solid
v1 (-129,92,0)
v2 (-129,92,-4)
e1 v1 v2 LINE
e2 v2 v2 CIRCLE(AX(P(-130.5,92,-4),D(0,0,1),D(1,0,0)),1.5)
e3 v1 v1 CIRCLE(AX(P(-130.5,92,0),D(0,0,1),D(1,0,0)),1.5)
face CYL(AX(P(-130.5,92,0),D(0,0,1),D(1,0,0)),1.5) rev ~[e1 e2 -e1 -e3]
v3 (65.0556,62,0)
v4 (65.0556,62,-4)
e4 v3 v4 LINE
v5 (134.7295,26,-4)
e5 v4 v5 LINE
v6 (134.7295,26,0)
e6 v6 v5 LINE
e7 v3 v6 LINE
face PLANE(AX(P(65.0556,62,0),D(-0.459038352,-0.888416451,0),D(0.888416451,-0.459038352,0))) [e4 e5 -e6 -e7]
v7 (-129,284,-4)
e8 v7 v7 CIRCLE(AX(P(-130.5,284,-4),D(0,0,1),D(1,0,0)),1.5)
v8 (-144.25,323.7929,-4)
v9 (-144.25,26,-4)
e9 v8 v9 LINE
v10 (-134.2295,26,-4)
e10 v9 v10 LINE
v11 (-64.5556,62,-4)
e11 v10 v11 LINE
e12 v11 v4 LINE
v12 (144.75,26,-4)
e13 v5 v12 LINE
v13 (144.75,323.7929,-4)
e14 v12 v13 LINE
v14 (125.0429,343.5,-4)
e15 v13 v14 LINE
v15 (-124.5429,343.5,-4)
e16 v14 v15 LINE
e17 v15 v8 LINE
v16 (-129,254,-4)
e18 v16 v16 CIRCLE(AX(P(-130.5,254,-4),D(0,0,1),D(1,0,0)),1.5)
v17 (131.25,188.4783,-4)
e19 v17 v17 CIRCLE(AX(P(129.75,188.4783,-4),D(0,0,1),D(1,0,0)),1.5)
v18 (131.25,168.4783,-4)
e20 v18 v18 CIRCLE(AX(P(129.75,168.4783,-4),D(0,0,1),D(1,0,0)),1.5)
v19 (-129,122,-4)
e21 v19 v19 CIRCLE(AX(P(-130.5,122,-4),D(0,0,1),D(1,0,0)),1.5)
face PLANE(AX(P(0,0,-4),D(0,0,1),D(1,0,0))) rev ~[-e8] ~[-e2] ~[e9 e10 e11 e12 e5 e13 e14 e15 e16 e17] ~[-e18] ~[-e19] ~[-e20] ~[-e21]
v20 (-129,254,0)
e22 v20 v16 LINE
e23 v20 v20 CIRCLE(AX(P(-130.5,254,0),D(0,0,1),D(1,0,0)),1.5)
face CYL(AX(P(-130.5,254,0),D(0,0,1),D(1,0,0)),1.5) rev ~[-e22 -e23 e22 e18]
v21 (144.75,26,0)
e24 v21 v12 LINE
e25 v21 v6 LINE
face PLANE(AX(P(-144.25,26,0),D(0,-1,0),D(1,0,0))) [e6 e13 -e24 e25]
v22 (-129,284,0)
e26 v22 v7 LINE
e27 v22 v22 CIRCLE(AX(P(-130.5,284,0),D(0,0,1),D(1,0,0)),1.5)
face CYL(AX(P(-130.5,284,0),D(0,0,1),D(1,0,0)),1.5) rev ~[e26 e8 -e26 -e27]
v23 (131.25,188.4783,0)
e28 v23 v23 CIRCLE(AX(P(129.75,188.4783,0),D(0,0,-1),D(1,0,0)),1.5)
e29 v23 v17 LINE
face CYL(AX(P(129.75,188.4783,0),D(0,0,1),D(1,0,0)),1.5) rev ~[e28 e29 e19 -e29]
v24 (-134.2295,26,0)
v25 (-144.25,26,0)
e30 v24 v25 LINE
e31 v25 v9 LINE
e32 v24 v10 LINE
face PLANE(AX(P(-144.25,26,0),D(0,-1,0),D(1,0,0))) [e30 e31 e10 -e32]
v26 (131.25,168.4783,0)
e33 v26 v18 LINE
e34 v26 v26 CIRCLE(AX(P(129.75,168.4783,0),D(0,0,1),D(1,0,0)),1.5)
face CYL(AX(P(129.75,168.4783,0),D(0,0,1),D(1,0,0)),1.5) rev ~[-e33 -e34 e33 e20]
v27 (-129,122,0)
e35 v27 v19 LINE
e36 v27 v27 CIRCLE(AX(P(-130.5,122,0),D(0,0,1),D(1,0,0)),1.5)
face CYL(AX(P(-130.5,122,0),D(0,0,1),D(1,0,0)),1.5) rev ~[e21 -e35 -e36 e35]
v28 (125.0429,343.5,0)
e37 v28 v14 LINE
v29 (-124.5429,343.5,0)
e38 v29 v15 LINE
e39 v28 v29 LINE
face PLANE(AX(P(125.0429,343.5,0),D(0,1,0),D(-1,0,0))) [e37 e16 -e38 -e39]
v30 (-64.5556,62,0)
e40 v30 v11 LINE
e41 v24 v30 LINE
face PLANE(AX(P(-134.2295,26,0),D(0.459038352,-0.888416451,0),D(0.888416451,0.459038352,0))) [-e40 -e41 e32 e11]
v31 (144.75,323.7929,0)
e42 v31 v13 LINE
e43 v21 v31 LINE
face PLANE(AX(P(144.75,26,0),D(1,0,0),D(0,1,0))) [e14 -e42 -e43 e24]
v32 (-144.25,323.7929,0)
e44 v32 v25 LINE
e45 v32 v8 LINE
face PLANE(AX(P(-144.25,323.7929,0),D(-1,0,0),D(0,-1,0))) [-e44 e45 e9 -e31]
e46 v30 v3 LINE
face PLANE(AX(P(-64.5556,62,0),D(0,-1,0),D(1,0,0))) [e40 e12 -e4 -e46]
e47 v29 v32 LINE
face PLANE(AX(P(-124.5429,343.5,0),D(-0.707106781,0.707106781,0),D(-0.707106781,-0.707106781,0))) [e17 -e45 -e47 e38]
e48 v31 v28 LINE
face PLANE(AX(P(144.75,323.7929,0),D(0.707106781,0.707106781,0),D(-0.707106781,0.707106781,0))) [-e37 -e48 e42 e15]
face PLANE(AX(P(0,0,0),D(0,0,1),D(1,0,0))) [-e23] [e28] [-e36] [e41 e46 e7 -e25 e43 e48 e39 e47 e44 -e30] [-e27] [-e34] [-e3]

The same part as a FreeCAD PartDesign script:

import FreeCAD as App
import Part
import Sketcher
from FreeCAD import Vector
Q = App.Units.Quantity


def add_polygon(sketch, points):
    """Adds a closed chain of lines whose ends are joined by coincident constraints."""
    first, n = sketch.GeometryCount, len(points)
    for a, b in zip(points, points[1:] + points[:1]):
        sketch.addGeometry(Part.LineSegment(App.Vector(*a, 0), App.Vector(*b, 0)), False)
    for i in range(n):
        sketch.addConstraint(Sketcher.Constraint("Coincident", first + i, 2, first + (i + 1) % n, 1))

doc = App.newDocument("Part")
params = doc.addObject("Spreadsheet::Sheet", "Params")
for row, (alias, value) in enumerate([
    ("sketch1_diameter", "3 mm"),
    ("sketch1_width", "289 mm"),
    ("sketch1_length", "27.87 mm"),
    ("pad1_length", "4 mm"),
    ("sketch2_diameter", "3 mm"),
    ("pocket1_length", "10 mm"),
    ("pocket2_length", "5 mm"),
    ("pocket3_length", "5 mm"),
], start=1):
    params.set(f"A{row}", alias)
    params.set(f"B{row}", "=" + value)
    params.setAlias(f"B{row}", alias)

body = doc.addObject("PartDesign::Body", "Body")

# Sketch on XY plane
sketch1 = body.newObject("Sketcher::SketchObject", "Sketch")
sketch1.AttachmentSupport = (doc.getObject("XY_Plane"), [""])
sketch1.MapMode = "FlatFace"
add_polygon(sketch1, [(-144.2, 323.8), (-144.2, 26), (144.8, 26), (144.8, 323.8), (125, 343.5), (-124.5, 343.5)])  # lines 0-5
sketch1.addGeometry(Part.Circle(Vector(-130.5, 92, 0), Vector(0, 0, 1), 1.5), False)  # 6
sketch1.addGeometry(Part.Circle(Vector(-130.5, 122, 0), Vector(0, 0, 1), 1.5), False)  # 7
sketch1.addGeometry(Part.Circle(Vector(-130.5, 254, 0), Vector(0, 0, 1), 1.5), False)  # 8
sketch1.addGeometry(Part.Circle(Vector(-130.5, 284, 0), Vector(0, 0, 1), 1.5), False)  # 9
sketch1.addConstraint([
    Sketcher.Constraint("Vertical", 0),
    Sketcher.Constraint("Horizontal", 1),
    Sketcher.Constraint("Vertical", 2),
    Sketcher.Constraint("Horizontal", 4),
    Sketcher.Constraint("Equal", 6, 7),
    Sketcher.Constraint("Equal", 7, 8),
    Sketcher.Constraint("Equal", 8, 9),
    Sketcher.Constraint("Perpendicular", 3, 5),
    Sketcher.Constraint("Horizontal", 2, 2, 5, 2),
    Sketcher.Constraint("Vertical", 6, 3, 7, 3),
    Sketcher.Constraint("Vertical", 7, 3, 8, 3),
    Sketcher.Constraint("Vertical", 8, 3, 9, 3),
    Sketcher.Constraint("Equal", 3, 5),
    Sketcher.Constraint("Diameter", 6, 3.0),
    Sketcher.Constraint("DistanceX", 1, 1, 1, 2, 289.0),
    Sketcher.Constraint("DistanceY", -1, 1, 6, 3, 92.0),
    Sketcher.Constraint("DistanceY", -1, 1, 7, 3, 122.0),
    Sketcher.Constraint("DistanceY", -1, 1, 8, 3, 254.0),
    Sketcher.Constraint("DistanceY", -1, 1, 9, 3, 284.0),
    Sketcher.Constraint("DistanceY", -1, 1, 0, 2, 26.0),
    Sketcher.Constraint("DistanceX", 6, 3, -1, 1, 130.5),
    Sketcher.Constraint("DistanceY", -1, 1, 3, 2, 343.5),
    Sketcher.Constraint("Distance", 3, 27.87),
    Sketcher.Constraint("DistanceX", 0, 2, -1, 1, 144.25),
])
sketch1.setExpression("Constraints[19]", "Params.sketch1_diameter")
sketch1.setExpression("Constraints[20]", "Params.sketch1_width")
sketch1.setExpression("Constraints[28]", "Params.sketch1_length")
pad1 = body.newObject("PartDesign::Pad", "Pad")
pad1.Profile = sketch1
pad1.setExpression("Length", "Params.pad1_length")
pad1.Reversed = True

# Sketch on XY plane
sketch2 = body.newObject("Sketcher::SketchObject", "Sketch001")
sketch2.AttachmentSupport = (doc.getObject("XY_Plane"), [""])
sketch2.MapMode = "FlatFace"
sketch2.addGeometry([
    Part.Circle(Vector(129.8, 188.5, 0), Vector(0, 0, 1), 1.5),
    Part.Circle(Vector(129.8, 168.5, 0), Vector(0, 0, 1), 1.5),
], False)
sketch2.addConstraint([
    Sketcher.Constraint("Equal", 0, 1),
    Sketcher.Constraint("Vertical", 0, 3, 1, 3),
    Sketcher.Constraint("Diameter", 0, 3.0),
    Sketcher.Constraint("DistanceY", 1, 3, 0, 3, 20.0),
    Sketcher.Constraint("DistanceX", -1, 1, 0, 3, 129.75),
    Sketcher.Constraint("DistanceY", -1, 1, 0, 3, 188.4783),
])
sketch2.setExpression("Constraints[2]", "Params.sketch2_diameter")
pocket1 = body.newObject("PartDesign::Pocket", "Pocket")
pocket1.Profile = sketch2
pocket1.setExpression("Length", "Params.pocket1_length")

# Sketch on XY plane
sketch3 = body.newObject("Sketcher::SketchObject", "Sketch002")
sketch3.AttachmentSupport = (doc.getObject("XY_Plane"), [""])
sketch3.MapMode = "FlatFace"
add_polygon(sketch3, [(132, 26), (-131, 26), (-103, -10), (104, -10)])  # lines 0-3
sketch3.addConstraint([
    Sketcher.Constraint("Horizontal", 0),
    Sketcher.Constraint("Horizontal", 2),
    Sketcher.Constraint("DistanceY", -1, 1, 0, 2, 26.0),
    Sketcher.Constraint("DistanceY", 1, 2, -1, 1, 10.5),
    Sketcher.Constraint("Angle", 3, Q("52.69 deg")),
    Sketcher.Constraint("DistanceX", 2, 1, 2, 2, 207.209),
    Sketcher.Constraint("DistanceX", -1, 1, 3, 2, 131.67),
    Sketcher.Constraint("Distance", 1, 45.889),
])
pocket2 = body.newObject("PartDesign::Pocket", "Pocket001")
pocket2.Profile = sketch3
pocket2.setExpression("Length", "Params.pocket2_length")

# Sketch on XY plane
sketch4 = body.newObject("Sketcher::SketchObject", "Sketch003")
sketch4.AttachmentSupport = (doc.getObject("XY_Plane"), [""])
sketch4.MapMode = "FlatFace"
add_polygon(sketch4, [(-65, 62), (-134, 26), (135, 26), (65, 62)])  # lines 0-3
sketch4.addConstraint([
    Sketcher.Constraint("Horizontal", 1),
    Sketcher.Constraint("Horizontal", 3),
    Sketcher.Constraint("Equal", 0, 2),
    Sketcher.Constraint("DistanceY", -1, 1, 0, 2, 26.0),
    Sketcher.Constraint("DistanceY", -1, 1, 2, 2, 62.0),
    Sketcher.Constraint("DistanceX", 1, 1, 1, 2, 268.959),
    Sketcher.Constraint("DistanceX", 3, 2, 3, 1, 129.6112),
    Sketcher.Constraint("DistanceX", 0, 2, -1, 1, 134.2295),
])
pocket3 = body.newObject("PartDesign::Pocket", "Pocket002")
pocket3.Profile = sketch4
pocket3.setExpression("Length", "Params.pocket3_length")

doc.recompute()
